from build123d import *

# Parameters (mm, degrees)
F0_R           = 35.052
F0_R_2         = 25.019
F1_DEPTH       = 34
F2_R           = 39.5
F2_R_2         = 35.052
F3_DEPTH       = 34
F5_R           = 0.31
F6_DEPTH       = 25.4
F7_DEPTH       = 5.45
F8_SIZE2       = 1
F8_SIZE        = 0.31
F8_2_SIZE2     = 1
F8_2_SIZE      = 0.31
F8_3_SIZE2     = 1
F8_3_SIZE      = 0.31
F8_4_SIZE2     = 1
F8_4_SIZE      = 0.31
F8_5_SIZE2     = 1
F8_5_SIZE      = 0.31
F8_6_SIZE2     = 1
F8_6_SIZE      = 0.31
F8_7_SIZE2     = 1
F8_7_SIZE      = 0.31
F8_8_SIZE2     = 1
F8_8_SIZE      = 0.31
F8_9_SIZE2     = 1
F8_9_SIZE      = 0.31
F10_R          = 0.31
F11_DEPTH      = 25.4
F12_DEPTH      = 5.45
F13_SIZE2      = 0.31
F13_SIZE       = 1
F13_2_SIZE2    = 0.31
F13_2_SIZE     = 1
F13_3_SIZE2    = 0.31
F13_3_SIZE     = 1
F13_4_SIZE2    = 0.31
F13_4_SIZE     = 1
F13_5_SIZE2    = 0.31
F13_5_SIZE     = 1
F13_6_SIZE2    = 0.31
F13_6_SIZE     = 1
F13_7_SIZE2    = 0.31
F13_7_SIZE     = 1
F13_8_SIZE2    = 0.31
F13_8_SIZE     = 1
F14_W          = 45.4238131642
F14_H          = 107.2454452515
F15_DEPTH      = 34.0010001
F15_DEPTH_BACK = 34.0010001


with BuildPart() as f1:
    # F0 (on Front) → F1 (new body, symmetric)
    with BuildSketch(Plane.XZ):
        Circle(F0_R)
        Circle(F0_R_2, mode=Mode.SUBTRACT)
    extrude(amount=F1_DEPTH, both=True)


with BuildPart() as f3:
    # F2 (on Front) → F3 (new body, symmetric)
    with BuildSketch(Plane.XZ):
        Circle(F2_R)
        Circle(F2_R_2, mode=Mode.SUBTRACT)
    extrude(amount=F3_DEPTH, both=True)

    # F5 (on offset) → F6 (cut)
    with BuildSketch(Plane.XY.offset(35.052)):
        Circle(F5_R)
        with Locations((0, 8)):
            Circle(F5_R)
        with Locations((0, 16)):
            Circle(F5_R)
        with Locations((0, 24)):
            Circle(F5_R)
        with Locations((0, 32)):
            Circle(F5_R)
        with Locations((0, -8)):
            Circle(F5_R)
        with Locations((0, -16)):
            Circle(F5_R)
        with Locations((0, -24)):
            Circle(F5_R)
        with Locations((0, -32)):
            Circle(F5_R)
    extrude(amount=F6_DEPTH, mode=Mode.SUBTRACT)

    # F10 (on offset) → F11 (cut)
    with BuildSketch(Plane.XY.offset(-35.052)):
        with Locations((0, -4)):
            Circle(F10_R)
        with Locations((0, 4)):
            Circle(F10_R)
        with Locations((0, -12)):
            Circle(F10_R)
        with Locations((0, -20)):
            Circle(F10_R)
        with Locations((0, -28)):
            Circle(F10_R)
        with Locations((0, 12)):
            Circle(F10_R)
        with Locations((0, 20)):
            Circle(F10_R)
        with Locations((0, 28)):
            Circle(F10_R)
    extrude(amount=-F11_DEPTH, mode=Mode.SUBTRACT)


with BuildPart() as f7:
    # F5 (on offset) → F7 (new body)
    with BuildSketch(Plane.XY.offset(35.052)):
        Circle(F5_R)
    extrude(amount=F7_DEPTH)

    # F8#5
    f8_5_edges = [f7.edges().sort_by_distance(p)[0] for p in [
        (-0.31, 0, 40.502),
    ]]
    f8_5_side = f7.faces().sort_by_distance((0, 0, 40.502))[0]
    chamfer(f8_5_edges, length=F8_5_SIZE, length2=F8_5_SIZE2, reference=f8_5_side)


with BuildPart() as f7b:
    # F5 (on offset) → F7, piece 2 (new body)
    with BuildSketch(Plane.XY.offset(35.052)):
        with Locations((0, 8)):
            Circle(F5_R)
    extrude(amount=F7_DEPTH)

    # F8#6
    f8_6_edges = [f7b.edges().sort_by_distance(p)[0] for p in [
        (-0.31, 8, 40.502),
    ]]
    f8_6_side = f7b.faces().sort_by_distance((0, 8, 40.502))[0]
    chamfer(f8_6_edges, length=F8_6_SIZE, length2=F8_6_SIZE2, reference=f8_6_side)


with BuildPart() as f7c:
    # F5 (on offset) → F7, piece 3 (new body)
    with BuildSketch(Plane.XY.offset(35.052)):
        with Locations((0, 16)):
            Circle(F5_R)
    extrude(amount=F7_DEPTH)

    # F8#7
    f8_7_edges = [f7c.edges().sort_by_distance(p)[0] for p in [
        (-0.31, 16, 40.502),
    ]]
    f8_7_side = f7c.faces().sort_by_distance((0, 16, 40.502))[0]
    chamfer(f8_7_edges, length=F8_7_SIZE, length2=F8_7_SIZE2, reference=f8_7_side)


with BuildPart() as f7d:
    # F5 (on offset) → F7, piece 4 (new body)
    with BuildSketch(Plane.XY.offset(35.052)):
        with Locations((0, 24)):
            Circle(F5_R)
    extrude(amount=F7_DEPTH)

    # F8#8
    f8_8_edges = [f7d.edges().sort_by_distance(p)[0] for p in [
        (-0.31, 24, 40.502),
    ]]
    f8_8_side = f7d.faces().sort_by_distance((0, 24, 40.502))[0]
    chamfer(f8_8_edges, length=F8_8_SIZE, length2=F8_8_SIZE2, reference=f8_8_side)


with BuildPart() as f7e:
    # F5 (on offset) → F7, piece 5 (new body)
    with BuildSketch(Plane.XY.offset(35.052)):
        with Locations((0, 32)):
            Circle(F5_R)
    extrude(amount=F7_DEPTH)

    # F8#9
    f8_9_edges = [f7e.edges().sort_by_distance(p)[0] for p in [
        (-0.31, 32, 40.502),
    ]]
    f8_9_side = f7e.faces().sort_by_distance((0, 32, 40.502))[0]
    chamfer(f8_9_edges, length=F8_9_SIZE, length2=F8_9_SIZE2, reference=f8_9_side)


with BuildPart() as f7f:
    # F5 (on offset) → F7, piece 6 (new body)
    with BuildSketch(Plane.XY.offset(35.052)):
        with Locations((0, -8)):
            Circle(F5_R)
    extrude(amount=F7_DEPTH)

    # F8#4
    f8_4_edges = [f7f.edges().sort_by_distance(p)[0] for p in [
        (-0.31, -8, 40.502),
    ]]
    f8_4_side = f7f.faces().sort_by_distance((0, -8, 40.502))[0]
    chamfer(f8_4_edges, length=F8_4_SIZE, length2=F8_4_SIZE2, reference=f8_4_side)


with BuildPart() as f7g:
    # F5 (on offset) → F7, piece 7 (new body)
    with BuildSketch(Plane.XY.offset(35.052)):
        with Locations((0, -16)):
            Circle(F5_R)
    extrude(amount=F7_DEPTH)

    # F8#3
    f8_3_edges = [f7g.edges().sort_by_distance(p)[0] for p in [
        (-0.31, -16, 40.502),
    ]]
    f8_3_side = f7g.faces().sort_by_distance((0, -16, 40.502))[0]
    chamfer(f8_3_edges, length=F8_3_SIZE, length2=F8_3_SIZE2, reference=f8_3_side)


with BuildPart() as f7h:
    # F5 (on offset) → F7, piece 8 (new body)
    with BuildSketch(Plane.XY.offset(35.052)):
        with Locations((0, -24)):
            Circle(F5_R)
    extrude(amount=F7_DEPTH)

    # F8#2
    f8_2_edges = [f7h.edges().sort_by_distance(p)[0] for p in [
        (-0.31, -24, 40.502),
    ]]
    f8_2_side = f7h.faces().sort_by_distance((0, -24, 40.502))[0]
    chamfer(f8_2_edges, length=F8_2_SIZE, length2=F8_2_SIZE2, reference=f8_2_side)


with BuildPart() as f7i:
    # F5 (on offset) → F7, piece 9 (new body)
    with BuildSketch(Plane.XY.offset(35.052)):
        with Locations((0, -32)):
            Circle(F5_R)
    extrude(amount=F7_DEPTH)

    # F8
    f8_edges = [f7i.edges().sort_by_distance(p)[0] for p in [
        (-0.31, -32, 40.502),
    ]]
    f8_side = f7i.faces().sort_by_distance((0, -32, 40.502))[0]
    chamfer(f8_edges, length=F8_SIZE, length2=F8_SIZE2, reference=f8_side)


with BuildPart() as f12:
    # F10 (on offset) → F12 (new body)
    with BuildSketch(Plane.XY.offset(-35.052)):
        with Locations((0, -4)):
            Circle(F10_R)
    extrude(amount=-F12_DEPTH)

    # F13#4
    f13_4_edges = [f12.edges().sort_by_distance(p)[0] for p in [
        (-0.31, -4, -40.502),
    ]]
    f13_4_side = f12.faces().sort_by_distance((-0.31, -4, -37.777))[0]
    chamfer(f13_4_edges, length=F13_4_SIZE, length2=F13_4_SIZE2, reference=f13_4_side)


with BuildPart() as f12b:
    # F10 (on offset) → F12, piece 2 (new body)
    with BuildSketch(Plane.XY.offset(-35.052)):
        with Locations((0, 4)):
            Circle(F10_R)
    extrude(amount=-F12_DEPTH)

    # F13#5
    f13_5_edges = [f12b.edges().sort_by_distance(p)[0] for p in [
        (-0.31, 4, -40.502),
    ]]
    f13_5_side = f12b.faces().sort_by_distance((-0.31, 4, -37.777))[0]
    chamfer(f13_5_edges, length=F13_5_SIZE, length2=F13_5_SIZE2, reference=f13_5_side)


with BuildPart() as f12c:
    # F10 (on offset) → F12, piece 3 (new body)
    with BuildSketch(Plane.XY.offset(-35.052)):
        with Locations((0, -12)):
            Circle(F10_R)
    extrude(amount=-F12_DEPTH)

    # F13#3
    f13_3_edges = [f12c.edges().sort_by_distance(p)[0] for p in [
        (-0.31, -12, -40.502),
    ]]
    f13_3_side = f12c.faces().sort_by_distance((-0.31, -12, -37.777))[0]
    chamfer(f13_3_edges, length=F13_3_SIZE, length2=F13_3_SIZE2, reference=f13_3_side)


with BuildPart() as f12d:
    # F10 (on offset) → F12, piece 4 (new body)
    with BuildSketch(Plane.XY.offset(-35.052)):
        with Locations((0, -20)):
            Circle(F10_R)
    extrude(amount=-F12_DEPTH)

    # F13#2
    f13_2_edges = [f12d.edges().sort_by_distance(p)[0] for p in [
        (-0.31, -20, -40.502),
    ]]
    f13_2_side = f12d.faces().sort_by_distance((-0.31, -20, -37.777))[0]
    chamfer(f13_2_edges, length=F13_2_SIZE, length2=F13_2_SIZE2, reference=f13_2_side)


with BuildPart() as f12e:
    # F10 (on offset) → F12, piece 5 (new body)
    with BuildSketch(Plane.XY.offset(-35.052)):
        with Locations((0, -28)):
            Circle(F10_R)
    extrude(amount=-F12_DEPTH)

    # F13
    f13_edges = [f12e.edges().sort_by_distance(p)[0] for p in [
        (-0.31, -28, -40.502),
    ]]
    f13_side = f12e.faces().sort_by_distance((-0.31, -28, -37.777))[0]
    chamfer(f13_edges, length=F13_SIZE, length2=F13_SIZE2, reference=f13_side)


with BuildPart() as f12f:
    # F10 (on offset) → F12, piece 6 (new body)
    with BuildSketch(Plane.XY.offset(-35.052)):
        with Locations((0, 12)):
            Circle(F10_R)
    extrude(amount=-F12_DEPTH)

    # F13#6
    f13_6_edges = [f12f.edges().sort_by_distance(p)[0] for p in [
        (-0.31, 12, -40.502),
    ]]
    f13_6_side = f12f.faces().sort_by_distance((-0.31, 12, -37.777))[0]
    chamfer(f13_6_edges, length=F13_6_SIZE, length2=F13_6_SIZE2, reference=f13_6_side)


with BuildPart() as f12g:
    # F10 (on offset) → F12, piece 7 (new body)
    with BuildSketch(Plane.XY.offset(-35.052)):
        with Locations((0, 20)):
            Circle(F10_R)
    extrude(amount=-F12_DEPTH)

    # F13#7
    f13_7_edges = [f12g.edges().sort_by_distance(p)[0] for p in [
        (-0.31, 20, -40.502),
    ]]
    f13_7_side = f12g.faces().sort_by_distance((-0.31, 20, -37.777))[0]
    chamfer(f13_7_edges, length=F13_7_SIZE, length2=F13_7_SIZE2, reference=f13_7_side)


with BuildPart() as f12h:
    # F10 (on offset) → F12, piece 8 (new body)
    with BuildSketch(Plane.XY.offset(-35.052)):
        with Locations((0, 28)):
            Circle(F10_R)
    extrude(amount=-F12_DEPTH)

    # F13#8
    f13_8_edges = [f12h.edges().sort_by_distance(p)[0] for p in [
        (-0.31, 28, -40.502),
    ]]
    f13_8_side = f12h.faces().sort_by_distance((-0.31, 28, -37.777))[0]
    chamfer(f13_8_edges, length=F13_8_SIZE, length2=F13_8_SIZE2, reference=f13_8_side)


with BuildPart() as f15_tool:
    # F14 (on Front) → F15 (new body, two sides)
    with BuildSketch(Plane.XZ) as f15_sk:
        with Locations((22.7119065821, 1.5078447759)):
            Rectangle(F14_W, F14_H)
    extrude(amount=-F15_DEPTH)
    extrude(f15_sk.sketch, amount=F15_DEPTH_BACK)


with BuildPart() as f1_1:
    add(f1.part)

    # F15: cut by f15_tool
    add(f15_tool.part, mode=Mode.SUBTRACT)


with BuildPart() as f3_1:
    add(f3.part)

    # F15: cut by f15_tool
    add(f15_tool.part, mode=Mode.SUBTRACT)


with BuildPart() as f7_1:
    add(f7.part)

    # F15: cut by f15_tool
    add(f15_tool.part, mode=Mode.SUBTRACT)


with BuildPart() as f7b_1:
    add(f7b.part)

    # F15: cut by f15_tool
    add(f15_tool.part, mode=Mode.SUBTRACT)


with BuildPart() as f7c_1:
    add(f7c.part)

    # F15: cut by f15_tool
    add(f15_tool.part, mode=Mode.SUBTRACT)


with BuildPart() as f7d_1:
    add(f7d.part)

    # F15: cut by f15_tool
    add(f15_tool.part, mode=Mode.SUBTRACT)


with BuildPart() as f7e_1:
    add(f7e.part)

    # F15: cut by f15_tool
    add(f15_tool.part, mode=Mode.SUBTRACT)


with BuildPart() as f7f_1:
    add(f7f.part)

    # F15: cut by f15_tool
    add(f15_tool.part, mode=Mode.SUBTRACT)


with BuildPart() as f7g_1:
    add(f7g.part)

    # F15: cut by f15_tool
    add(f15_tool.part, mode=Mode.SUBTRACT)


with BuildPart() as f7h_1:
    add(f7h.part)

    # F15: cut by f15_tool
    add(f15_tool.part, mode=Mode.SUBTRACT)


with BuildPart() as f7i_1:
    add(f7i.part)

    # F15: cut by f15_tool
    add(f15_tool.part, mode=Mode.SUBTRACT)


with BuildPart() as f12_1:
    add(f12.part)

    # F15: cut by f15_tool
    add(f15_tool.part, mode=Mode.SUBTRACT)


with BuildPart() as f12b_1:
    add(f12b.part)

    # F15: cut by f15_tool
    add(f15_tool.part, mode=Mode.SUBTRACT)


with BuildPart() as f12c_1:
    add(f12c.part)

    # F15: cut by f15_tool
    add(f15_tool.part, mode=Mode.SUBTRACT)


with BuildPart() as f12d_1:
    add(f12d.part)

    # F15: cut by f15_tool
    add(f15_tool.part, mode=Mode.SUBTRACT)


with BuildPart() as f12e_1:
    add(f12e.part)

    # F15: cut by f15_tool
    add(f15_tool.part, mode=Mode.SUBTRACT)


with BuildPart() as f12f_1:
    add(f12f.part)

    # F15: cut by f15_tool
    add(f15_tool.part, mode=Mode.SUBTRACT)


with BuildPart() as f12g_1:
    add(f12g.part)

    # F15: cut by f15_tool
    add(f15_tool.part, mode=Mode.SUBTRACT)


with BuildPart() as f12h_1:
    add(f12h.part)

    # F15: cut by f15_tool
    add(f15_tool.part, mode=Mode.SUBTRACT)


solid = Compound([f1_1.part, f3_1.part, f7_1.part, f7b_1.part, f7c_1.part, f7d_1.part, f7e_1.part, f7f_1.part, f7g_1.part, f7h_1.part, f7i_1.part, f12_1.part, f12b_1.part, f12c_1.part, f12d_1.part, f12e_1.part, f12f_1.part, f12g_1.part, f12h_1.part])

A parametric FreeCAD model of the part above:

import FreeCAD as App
import Part
import Sketcher
from FreeCAD import Vector


def edges_at(feature, points):
    """Names of the edges that pass closest to the given points."""
    edges = feature.Shape.Edges
    near = lambda p: min(range(len(edges)), key=lambda i: edges[i].distToShape(Part.Vertex(*p))[0])
    return sorted({f"Edge{near(p) + 1}" for p in points})


def add_polygon(sketch, points):
    """Adds a closed chain of lines whose ends are joined by coincident constraints."""
    first, n = sketch.GeometryCount, len(points)
    for a, b in zip(points, points[1:] + points[:1]):
        sketch.addGeometry(Part.LineSegment(App.Vector(*a, 0), App.Vector(*b, 0)), False)
    for i in range(n):
        sketch.addConstraint(Sketcher.Constraint("Coincident", first + i, 2, first + (i + 1) % n, 1))

doc = App.newDocument("Part")
body = doc.addObject("PartDesign::Body", "Body")

sketch1 = body.newObject("Sketcher::SketchObject", "Sketch")
sketch1.AttachmentSupport = (doc.getObject("XZ_Plane"), [""])
sketch1.MapMode = "FlatFace"
sketch1.addGeometry([
    Part.Circle(Vector(0, 0, 0), Vector(0, 0, 1), 35),
    Part.Circle(Vector(0, 0, 0), Vector(0, 0, 1), 25),
], False)
sketch1.addConstraint([
    Sketcher.Constraint("Coincident", 0, 3, -1, 1),
    Sketcher.Constraint("Coincident", 1, 3, -1, 1),
    Sketcher.Constraint("Diameter", 0, 70.104),
    Sketcher.Constraint("Diameter", 1, 50.038),
])
pad1 = body.newObject("PartDesign::Pad", "Pad")
pad1.Profile = sketch1
pad1.Length = 68
pad1.Midplane = True
body2 = doc.addObject("PartDesign::Body", "Body001")

sketch2 = body2.newObject("Sketcher::SketchObject", "Sketch001")
sketch2.AttachmentSupport = (doc.getObject("XZ_Plane001"), [""])
sketch2.MapMode = "FlatFace"
sketch2.addGeometry([
    Part.Circle(Vector(0, 0, 0), Vector(0, 0, 1), 40),
    Part.Circle(Vector(0, 0, 0), Vector(0, 0, 1), 35),
], False)
sketch2.addConstraint([
    Sketcher.Constraint("Coincident", 0, 3, -1, 1),
    Sketcher.Constraint("Coincident", 1, 3, -1, 1),
    Sketcher.Constraint("Diameter", 0, 79.0),
    Sketcher.Constraint("Diameter", 1, 70.104),
])
pad2 = body2.newObject("PartDesign::Pad", "Pad001")
pad2.Profile = sketch2
pad2.Length = 68
pad2.Midplane = True

sketch3 = body2.newObject("Sketcher::SketchObject", "Sketch002")
sketch3.AttachmentSupport = (doc.getObject("XY_Plane001"), [""])
sketch3.MapMode = "FlatFace"
sketch3.AttachmentOffset = App.Placement(Vector(0, 0, 35.052), App.Rotation())
sketch3.addGeometry([
    Part.Circle(Vector(0, 0, 0), Vector(0, 0, 1), 0.31),
    Part.Circle(Vector(0, 8, 0), Vector(0, 0, 1), 0.31),
    Part.Circle(Vector(0, 16, 0), Vector(0, 0, 1), 0.31),
    Part.Circle(Vector(0, 24, 0), Vector(0, 0, 1), 0.31),
    Part.Circle(Vector(0, 32, 0), Vector(0, 0, 1), 0.31),
    Part.Circle(Vector(0, -8, 0), Vector(0, 0, 1), 0.31),
    Part.Circle(Vector(0, -16, 0), Vector(0, 0, 1), 0.31),
    Part.Circle(Vector(0, -24, 0), Vector(0, 0, 1), 0.31),
    Part.Circle(Vector(0, -32, 0), Vector(0, 0, 1), 0.31),
], False)
sketch3.addConstraint([
    Sketcher.Constraint("Coincident", 0, 3, -1, 1),
    Sketcher.Constraint("Equal", 0, 1),
    Sketcher.Constraint("Equal", 1, 2),
    Sketcher.Constraint("Equal", 2, 3),
    Sketcher.Constraint("Equal", 3, 4),
    Sketcher.Constraint("Equal", 4, 5),
    Sketcher.Constraint("Equal", 5, 6),
    Sketcher.Constraint("Equal", 6, 7),
    Sketcher.Constraint("Equal", 7, 8),
    Sketcher.Constraint("Symmetric", 1, 3, 5, 3, -1, 1),
    Sketcher.Constraint("Symmetric", 2, 3, 6, 3, -1, 1),
    Sketcher.Constraint("Symmetric", 3, 3, 7, 3, -1, 1),
    Sketcher.Constraint("Symmetric", 4, 3, 8, 3, -1, 1),
    Sketcher.Constraint("PointOnObject", 1, 3, -2),
    Sketcher.Constraint("PointOnObject", 2, 3, -2),
    Sketcher.Constraint("PointOnObject", 3, 3, -2),
    Sketcher.Constraint("PointOnObject", 4, 3, -2),
    Sketcher.Constraint("Diameter", 0, 0.62),
    Sketcher.Constraint("DistanceY", -1, 1, 1, 3, 8.0),
    Sketcher.Constraint("DistanceY", -1, 1, 2, 3, 16.0),
    Sketcher.Constraint("DistanceY", -1, 1, 3, 3, 24.0),
    Sketcher.Constraint("DistanceY", -1, 1, 4, 3, 32.0),
])
pocket1 = body2.newObject("PartDesign::Pocket", "Pocket")
pocket1.Profile = sketch3
pocket1.Length = 25.4
pocket1.Reversed = True

sketch4 = body2.newObject("Sketcher::SketchObject", "Sketch003")
sketch4.AttachmentSupport = (doc.getObject("XY_Plane001"), [""])
sketch4.MapMode = "FlatFace"
sketch4.AttachmentOffset = App.Placement(Vector(0, 0, -35.052), App.Rotation())
sketch4.addGeometry([
    Part.Circle(Vector(0, -4, 0), Vector(0, 0, 1), 0.31),
    Part.Circle(Vector(0, 4, 0), Vector(0, 0, 1), 0.31),
    Part.Circle(Vector(0, -12, 0), Vector(0, 0, 1), 0.31),
    Part.Circle(Vector(0, -20, 0), Vector(0, 0, 1), 0.31),
    Part.Circle(Vector(0, -28, 0), Vector(0, 0, 1), 0.31),
    Part.Circle(Vector(0, 12, 0), Vector(0, 0, 1), 0.31),
    Part.Circle(Vector(0, 20, 0), Vector(0, 0, 1), 0.31),
    Part.Circle(Vector(0, 28, 0), Vector(0, 0, 1), 0.31),
], False)
sketch4.addConstraint([
    Sketcher.Constraint("Equal", 0, 1),
    Sketcher.Constraint("Equal", 1, 2),
    Sketcher.Constraint("Equal", 2, 3),
    Sketcher.Constraint("Equal", 3, 4),
    Sketcher.Constraint("Equal", 4, 5),
    Sketcher.Constraint("Equal", 5, 6),
    Sketcher.Constraint("Equal", 6, 7),
    Sketcher.Constraint("Symmetric", 0, 3, 1, 3, -1, 1),
    Sketcher.Constraint("Symmetric", 2, 3, 5, 3, -1, 1),
    Sketcher.Constraint("Symmetric", 3, 3, 6, 3, -1, 1),
    Sketcher.Constraint("Symmetric", 4, 3, 7, 3, -1, 1),
    Sketcher.Constraint("PointOnObject", 0, 3, -2),
    Sketcher.Constraint("PointOnObject", 2, 3, -2),
    Sketcher.Constraint("PointOnObject", 3, 3, -2),
    Sketcher.Constraint("PointOnObject", 4, 3, -2),
    Sketcher.Constraint("Diameter", 0, 0.62),
    Sketcher.Constraint("DistanceY", 0, 3, -1, 1, 4.0),
    Sketcher.Constraint("DistanceY", 2, 3, -1, 1, 12.0),
    Sketcher.Constraint("DistanceY", 3, 3, -1, 1, 20.0),
    Sketcher.Constraint("DistanceY", 4, 3, -1, 1, 28.0),
])
pocket2 = body2.newObject("PartDesign::Pocket", "Pocket001")
pocket2.Profile = sketch4
pocket2.Length = 25.4
body3 = doc.addObject("PartDesign::Body", "Body002")

sketch5 = body3.newObject("Sketcher::SketchObject", "Sketch004")
sketch5.AttachmentSupport = (doc.getObject("XY_Plane002"), [""])
sketch5.MapMode = "FlatFace"
sketch5.AttachmentOffset = App.Placement(Vector(0, 0, 35.052), App.Rotation())
sketch5.addGeometry(Part.Circle(Vector(0, 0, 0), Vector(0, 0, 1), 0.31), False)
sketch5.addConstraint([
    Sketcher.Constraint("Coincident", 0, 3, -1, 1),
    Sketcher.Constraint("Diameter", 0, 0.62),
])
pad3 = body3.newObject("PartDesign::Pad", "Pad002")
pad3.Profile = sketch5
pad3.Length = 5.45
doc.recompute()

chamfer = body3.newObject("PartDesign::Chamfer", "Chamfer")
chamfer.Base = (pad3, edges_at(pad3, [(-0.31, 0, 40.502)]))
chamfer.ChamferType = "Two distances"
chamfer.Size = 0.31
chamfer.Size2 = 1
chamfer.FlipDirection = True
body4 = doc.addObject("PartDesign::Body", "Body003")

sketch6 = body4.newObject("Sketcher::SketchObject", "Sketch005")
sketch6.AttachmentSupport = (doc.getObject("XY_Plane003"), [""])
sketch6.MapMode = "FlatFace"
sketch6.AttachmentOffset = App.Placement(Vector(0, 0, 35.052), App.Rotation())
sketch6.addGeometry(Part.Circle(Vector(0, 8, 0), Vector(0, 0, 1), 0.31), False)
sketch6.addConstraint([
    Sketcher.Constraint("PointOnObject", 0, 3, -2),
    Sketcher.Constraint("Diameter", 0, 0.62),
    Sketcher.Constraint("DistanceY", -1, 1, 0, 3, 8.0),
])
pad4 = body4.newObject("PartDesign::Pad", "Pad003")
pad4.Profile = sketch6
pad4.Length = 5.45
doc.recompute()

chamfer2 = body4.newObject("PartDesign::Chamfer", "Chamfer001")
chamfer2.Base = (pad4, edges_at(pad4, [(-0.31, 8, 40.502)]))
chamfer2.ChamferType = "Two distances"
chamfer2.Size = 0.31
chamfer2.Size2 = 1
chamfer2.FlipDirection = True
body5 = doc.addObject("PartDesign::Body", "Body004")

sketch7 = body5.newObject("Sketcher::SketchObject", "Sketch006")
sketch7.AttachmentSupport = (doc.getObject("XY_Plane004"), [""])
sketch7.MapMode = "FlatFace"
sketch7.AttachmentOffset = App.Placement(Vector(0, 0, 35.052), App.Rotation())
sketch7.addGeometry(Part.Circle(Vector(0, 16, 0), Vector(0, 0, 1), 0.31), False)
sketch7.addConstraint([
    Sketcher.Constraint("PointOnObject", 0, 3, -2),
    Sketcher.Constraint("Diameter", 0, 0.62),
    Sketcher.Constraint("DistanceY", -1, 1, 0, 3, 16.0),
])
pad5 = body5.newObject("PartDesign::Pad", "Pad004")
pad5.Profile = sketch7
pad5.Length = 5.45
doc.recompute()

chamfer3 = body5.newObject("PartDesign::Chamfer", "Chamfer002")
chamfer3.Base = (pad5, edges_at(pad5, [(-0.31, 16, 40.502)]))
chamfer3.ChamferType = "Two distances"
chamfer3.Size = 0.31
chamfer3.Size2 = 1
chamfer3.FlipDirection = True
body6 = doc.addObject("PartDesign::Body", "Body005")

sketch8 = body6.newObject("Sketcher::SketchObject", "Sketch007")
sketch8.AttachmentSupport = (doc.getObject("XY_Plane005"), [""])
sketch8.MapMode = "FlatFace"
sketch8.AttachmentOffset = App.Placement(Vector(0, 0, 35.052), App.Rotation())
sketch8.addGeometry(Part.Circle(Vector(0, 24, 0), Vector(0, 0, 1), 0.31), False)
sketch8.addConstraint([
    Sketcher.Constraint("PointOnObject", 0, 3, -2),
    Sketcher.Constraint("Diameter", 0, 0.62),
    Sketcher.Constraint("DistanceY", -1, 1, 0, 3, 24.0),
])
pad6 = body6.newObject("PartDesign::Pad", "Pad005")
pad6.Profile = sketch8
pad6.Length = 5.45
doc.recompute()

chamfer4 = body6.newObject("PartDesign::Chamfer", "Chamfer003")
chamfer4.Base = (pad6, edges_at(pad6, [(-0.31, 24, 40.502)]))
chamfer4.ChamferType = "Two distances"
chamfer4.Size = 0.31
chamfer4.Size2 = 1
chamfer4.FlipDirection = True
body7 = doc.addObject("PartDesign::Body", "Body006")

sketch9 = body7.newObject("Sketcher::SketchObject", "Sketch008")
sketch9.AttachmentSupport = (doc.getObject("XY_Plane006"), [""])
sketch9.MapMode = "FlatFace"
sketch9.AttachmentOffset = App.Placement(Vector(0, 0, 35.052), App.Rotation())
sketch9.addGeometry(Part.Circle(Vector(0, 32, 0), Vector(0, 0, 1), 0.31), False)
sketch9.addConstraint([
    Sketcher.Constraint("PointOnObject", 0, 3, -2),
    Sketcher.Constraint("Diameter", 0, 0.62),
    Sketcher.Constraint("DistanceY", -1, 1, 0, 3, 32.0),
])
pad7 = body7.newObject("PartDesign::Pad", "Pad006")
pad7.Profile = sketch9
pad7.Length = 5.45
doc.recompute()

chamfer5 = body7.newObject("PartDesign::Chamfer", "Chamfer004")
chamfer5.Base = (pad7, edges_at(pad7, [(-0.31, 32, 40.502)]))
chamfer5.ChamferType = "Two distances"
chamfer5.Size = 0.31
chamfer5.Size2 = 1
chamfer5.FlipDirection = True
body8 = doc.addObject("PartDesign::Body", "Body007")

sketch10 = body8.newObject("Sketcher::SketchObject", "Sketch009")
sketch10.AttachmentSupport = (doc.getObject("XY_Plane007"), [""])
sketch10.MapMode = "FlatFace"
sketch10.AttachmentOffset = App.Placement(Vector(0, 0, 35.052), App.Rotation())
sketch10.addGeometry(Part.Circle(Vector(0, -8, 0), Vector(0, 0, 1), 0.31), False)
sketch10.addConstraint([
    Sketcher.Constraint("PointOnObject", 0, 3, -2),
    Sketcher.Constraint("Diameter", 0, 0.62),
    Sketcher.Constraint("DistanceY", 0, 3, -1, 1, 8.0),
])
pad8 = body8.newObject("PartDesign::Pad", "Pad007")
pad8.Profile = sketch10
pad8.Length = 5.45
doc.recompute()

chamfer6 = body8.newObject("PartDesign::Chamfer", "Chamfer005")
chamfer6.Base = (pad8, edges_at(pad8, [(-0.31, -8, 40.502)]))
chamfer6.ChamferType = "Two distances"
chamfer6.Size = 0.31
chamfer6.Size2 = 1
chamfer6.FlipDirection = True
body9 = doc.addObject("PartDesign::Body", "Body008")

sketch11 = body9.newObject("Sketcher::SketchObject", "Sketch010")
sketch11.AttachmentSupport = (doc.getObject("XY_Plane008"), [""])
sketch11.MapMode = "FlatFace"
sketch11.AttachmentOffset = App.Placement(Vector(0, 0, 35.052), App.Rotation())
sketch11.addGeometry(Part.Circle(Vector(0, -16, 0), Vector(0, 0, 1), 0.31), False)
sketch11.addConstraint([
    Sketcher.Constraint("PointOnObject", 0, 3, -2),
    Sketcher.Constraint("Diameter", 0, 0.62),
    Sketcher.Constraint("DistanceY", 0, 3, -1, 1, 16.0),
])
pad9 = body9.newObject("PartDesign::Pad", "Pad008")
pad9.Profile = sketch11
pad9.Length = 5.45
doc.recompute()

chamfer7 = body9.newObject("PartDesign::Chamfer", "Chamfer006")
chamfer7.Base = (pad9, edges_at(pad9, [(-0.31, -16, 40.502)]))
chamfer7.ChamferType = "Two distances"
chamfer7.Size = 0.31
chamfer7.Size2 = 1
chamfer7.FlipDirection = True
body10 = doc.addObject("PartDesign::Body", "Body009")

sketch12 = body10.newObject("Sketcher::SketchObject", "Sketch011")
sketch12.AttachmentSupport = (doc.getObject("XY_Plane009"), [""])
sketch12.MapMode = "FlatFace"
sketch12.AttachmentOffset = App.Placement(Vector(0, 0, 35.052), App.Rotation())
sketch12.addGeometry(Part.Circle(Vector(0, -24, 0), Vector(0, 0, 1), 0.31), False)
sketch12.addConstraint([
    Sketcher.Constraint("PointOnObject", 0, 3, -2),
    Sketcher.Constraint("Diameter", 0, 0.62),
    Sketcher.Constraint("DistanceY", 0, 3, -1, 1, 24.0),
])
pad10 = body10.newObject("PartDesign::Pad", "Pad009")
pad10.Profile = sketch12
pad10.Length = 5.45
doc.recompute()

chamfer8 = body10.newObject("PartDesign::Chamfer", "Chamfer007")
chamfer8.Base = (pad10, edges_at(pad10, [(-0.31, -24, 40.502)]))
chamfer8.ChamferType = "Two distances"
chamfer8.Size = 0.31
chamfer8.Size2 = 1
chamfer8.FlipDirection = True
body11 = doc.addObject("PartDesign::Body", "Body010")

sketch13 = body11.newObject("Sketcher::SketchObject", "Sketch012")
sketch13.AttachmentSupport = (doc.getObject("XY_Plane010"), [""])
sketch13.MapMode = "FlatFace"
sketch13.AttachmentOffset = App.Placement(Vector(0, 0, 35.052), App.Rotation())
sketch13.addGeometry(Part.Circle(Vector(0, -32, 0), Vector(0, 0, 1), 0.31), False)
sketch13.addConstraint([
    Sketcher.Constraint("PointOnObject", 0, 3, -2),
    Sketcher.Constraint("Diameter", 0, 0.62),
    Sketcher.Constraint("DistanceY", 0, 3, -1, 1, 32.0),
])
pad11 = body11.newObject("PartDesign::Pad", "Pad010")
pad11.Profile = sketch13
pad11.Length = 5.45
doc.recompute()

chamfer9 = body11.newObject("PartDesign::Chamfer", "Chamfer008")
chamfer9.Base = (pad11, edges_at(pad11, [(-0.31, -32, 40.502)]))
chamfer9.ChamferType = "Two distances"
chamfer9.Size = 0.31
chamfer9.Size2 = 1
chamfer9.FlipDirection = True
body12 = doc.addObject("PartDesign::Body", "Body011")

sketch14 = body12.newObject("Sketcher::SketchObject", "Sketch013")
sketch14.AttachmentSupport = (doc.getObject("XY_Plane011"), [""])
sketch14.MapMode = "FlatFace"
sketch14.AttachmentOffset = App.Placement(Vector(0, 0, -35.052), App.Rotation())
sketch14.addGeometry(Part.Circle(Vector(0, -4, 0), Vector(0, 0, 1), 0.31), False)
sketch14.addConstraint([
    Sketcher.Constraint("PointOnObject", 0, 3, -2),
    Sketcher.Constraint("Diameter", 0, 0.62),
    Sketcher.Constraint("DistanceY", 0, 3, -1, 1, 4.0),
])
pad12 = body12.newObject("PartDesign::Pad", "Pad011")
pad12.Profile = sketch14
pad12.Length = 5.45
pad12.Reversed = True
doc.recompute()

chamfer10 = body12.newObject("PartDesign::Chamfer", "Chamfer009")
chamfer10.Base = (pad12, edges_at(pad12, [(-0.31, -4, -40.502)]))
chamfer10.ChamferType = "Two distances"
chamfer10.Size = 1
chamfer10.Size2 = 0.31
body13 = doc.addObject("PartDesign::Body", "Body012")

sketch15 = body13.newObject("Sketcher::SketchObject", "Sketch014")
sketch15.AttachmentSupport = (doc.getObject("XY_Plane012"), [""])
sketch15.MapMode = "FlatFace"
sketch15.AttachmentOffset = App.Placement(Vector(0, 0, -35.052), App.Rotation())
sketch15.addGeometry(Part.Circle(Vector(0, 4, 0), Vector(0, 0, 1), 0.31), False)
sketch15.addConstraint([
    Sketcher.Constraint("PointOnObject", 0, 3, -2),
    Sketcher.Constraint("Diameter", 0, 0.62),
    Sketcher.Constraint("DistanceY", -1, 1, 0, 3, 4.0),
])
pad13 = body13.newObject("PartDesign::Pad", "Pad012")
pad13.Profile = sketch15
pad13.Length = 5.45
pad13.Reversed = True
doc.recompute()

chamfer11 = body13.newObject("PartDesign::Chamfer", "Chamfer010")
chamfer11.Base = (pad13, edges_at(pad13, [(-0.31, 4, -40.502)]))
chamfer11.ChamferType = "Two distances"
chamfer11.Size = 1
chamfer11.Size2 = 0.31
body14 = doc.addObject("PartDesign::Body", "Body013")

sketch16 = body14.newObject("Sketcher::SketchObject", "Sketch015")
sketch16.AttachmentSupport = (doc.getObject("XY_Plane013"), [""])
sketch16.MapMode = "FlatFace"
sketch16.AttachmentOffset = App.Placement(Vector(0, 0, -35.052), App.Rotation())
sketch16.addGeometry(Part.Circle(Vector(0, -12, 0), Vector(0, 0, 1), 0.31), False)
sketch16.addConstraint([
    Sketcher.Constraint("PointOnObject", 0, 3, -2),
    Sketcher.Constraint("Diameter", 0, 0.62),
    Sketcher.Constraint("DistanceY", 0, 3, -1, 1, 12.0),
])
pad14 = body14.newObject("PartDesign::Pad", "Pad013")
pad14.Profile = sketch16
pad14.Length = 5.45
pad14.Reversed = True
doc.recompute()

chamfer12 = body14.newObject("PartDesign::Chamfer", "Chamfer011")
chamfer12.Base = (pad14, edges_at(pad14, [(-0.31, -12, -40.502)]))
chamfer12.ChamferType = "Two distances"
chamfer12.Size = 1
chamfer12.Size2 = 0.31
body15 = doc.addObject("PartDesign::Body", "Body014")

sketch17 = body15.newObject("Sketcher::SketchObject", "Sketch016")
sketch17.AttachmentSupport = (doc.getObject("XY_Plane014"), [""])
sketch17.MapMode = "FlatFace"
sketch17.AttachmentOffset = App.Placement(Vector(0, 0, -35.052), App.Rotation())
sketch17.addGeometry(Part.Circle(Vector(0, -20, 0), Vector(0, 0, 1), 0.31), False)
sketch17.addConstraint([
    Sketcher.Constraint("PointOnObject", 0, 3, -2),
    Sketcher.Constraint("Diameter", 0, 0.62),
    Sketcher.Constraint("DistanceY", 0, 3, -1, 1, 20.0),
])
pad15 = body15.newObject("PartDesign::Pad", "Pad014")
pad15.Profile = sketch17
pad15.Length = 5.45
pad15.Reversed = True
doc.recompute()

chamfer13 = body15.newObject("PartDesign::Chamfer", "Chamfer012")
chamfer13.Base = (pad15, edges_at(pad15, [(-0.31, -20, -40.502)]))
chamfer13.ChamferType = "Two distances"
chamfer13.Size = 1
chamfer13.Size2 = 0.31
body16 = doc.addObject("PartDesign::Body", "Body015")

sketch18 = body16.newObject("Sketcher::SketchObject", "Sketch017")
sketch18.AttachmentSupport = (doc.getObject("XY_Plane015"), [""])
sketch18.MapMode = "FlatFace"
sketch18.AttachmentOffset = App.Placement(Vector(0, 0, -35.052), App.Rotation())
sketch18.addGeometry(Part.Circle(Vector(0, -28, 0), Vector(0, 0, 1), 0.31), False)
sketch18.addConstraint([
    Sketcher.Constraint("PointOnObject", 0, 3, -2),
    Sketcher.Constraint("Diameter", 0, 0.62),
    Sketcher.Constraint("DistanceY", 0, 3, -1, 1, 28.0),
])
pad16 = body16.newObject("PartDesign::Pad", "Pad015")
pad16.Profile = sketch18
pad16.Length = 5.45
pad16.Reversed = True
doc.recompute()

chamfer14 = body16.newObject("PartDesign::Chamfer", "Chamfer013")
chamfer14.Base = (pad16, edges_at(pad16, [(-0.31, -28, -40.502)]))
chamfer14.ChamferType = "Two distances"
chamfer14.Size = 1
chamfer14.Size2 = 0.31
body17 = doc.addObject("PartDesign::Body", "Body016")

sketch19 = body17.newObject("Sketcher::SketchObject", "Sketch018")
sketch19.AttachmentSupport = (doc.getObject("XY_Plane016"), [""])
sketch19.MapMode = "FlatFace"
sketch19.AttachmentOffset = App.Placement(Vector(0, 0, -35.052), App.Rotation())
sketch19.addGeometry(Part.Circle(Vector(0, 12, 0), Vector(0, 0, 1), 0.31), False)
sketch19.addConstraint([
    Sketcher.Constraint("PointOnObject", 0, 3, -2),
    Sketcher.Constraint("Diameter", 0, 0.62),
    Sketcher.Constraint("DistanceY", -1, 1, 0, 3, 12.0),
])
pad17 = body17.newObject("PartDesign::Pad", "Pad016")
pad17.Profile = sketch19
pad17.Length = 5.45
pad17.Reversed = True
doc.recompute()

chamfer15 = body17.newObject("PartDesign::Chamfer", "Chamfer014")
chamfer15.Base = (pad17, edges_at(pad17, [(-0.31, 12, -40.502)]))
chamfer15.ChamferType = "Two distances"
chamfer15.Size = 1
chamfer15.Size2 = 0.31
body18 = doc.addObject("PartDesign::Body", "Body017")

sketch20 = body18.newObject("Sketcher::SketchObject", "Sketch019")
sketch20.AttachmentSupport = (doc.getObject("XY_Plane017"), [""])
sketch20.MapMode = "FlatFace"
sketch20.AttachmentOffset = App.Placement(Vector(0, 0, -35.052), App.Rotation())
sketch20.addGeometry(Part.Circle(Vector(0, 20, 0), Vector(0, 0, 1), 0.31), False)
sketch20.addConstraint([
    Sketcher.Constraint("PointOnObject", 0, 3, -2),
    Sketcher.Constraint("Diameter", 0, 0.62),
    Sketcher.Constraint("DistanceY", -1, 1, 0, 3, 20.0),
])
pad18 = body18.newObject("PartDesign::Pad", "Pad017")
pad18.Profile = sketch20
pad18.Length = 5.45
pad18.Reversed = True
doc.recompute()

chamfer16 = body18.newObject("PartDesign::Chamfer", "Chamfer015")
chamfer16.Base = (pad18, edges_at(pad18, [(-0.31, 20, -40.502)]))
chamfer16.ChamferType = "Two distances"
chamfer16.Size = 1
chamfer16.Size2 = 0.31
body19 = doc.addObject("PartDesign::Body", "Body018")

sketch21 = body19.newObject("Sketcher::SketchObject", "Sketch020")
sketch21.AttachmentSupport = (doc.getObject("XY_Plane018"), [""])
sketch21.MapMode = "FlatFace"
sketch21.AttachmentOffset = App.Placement(Vector(0, 0, -35.052), App.Rotation())
sketch21.addGeometry(Part.Circle(Vector(0, 28, 0), Vector(0, 0, 1), 0.31), False)
sketch21.addConstraint([
    Sketcher.Constraint("PointOnObject", 0, 3, -2),
    Sketcher.Constraint("Diameter", 0, 0.62),
    Sketcher.Constraint("DistanceY", -1, 1, 0, 3, 28.0),
])
pad19 = body19.newObject("PartDesign::Pad", "Pad018")
pad19.Profile = sketch21
pad19.Length = 5.45
pad19.Reversed = True
doc.recompute()

chamfer17 = body19.newObject("PartDesign::Chamfer", "Chamfer016")
chamfer17.Base = (pad19, edges_at(pad19, [(-0.31, 28, -40.502)]))
chamfer17.ChamferType = "Two distances"
chamfer17.Size = 1
chamfer17.Size2 = 0.31
body20 = doc.addObject("PartDesign::Body", "Body019")

sketch22 = body20.newObject("Sketcher::SketchObject", "Sketch021")
sketch22.AttachmentSupport = (doc.getObject("XZ_Plane019"), [""])
sketch22.MapMode = "FlatFace"
add_polygon(sketch22, [(0, 55), (0, -52), (45, -52), (45, 55)])
sketch22.addConstraint([
    Sketcher.Constraint("Vertical", 0),
    Sketcher.Constraint("Horizontal", 1),
    Sketcher.Constraint("Vertical", 2),
    Sketcher.Constraint("Horizontal", 3),
    Sketcher.Constraint("PointOnObject", 0, 2, -2),
    Sketcher.Constraint("DistanceX", 1, 1, 1, 2, 45.423813),
    Sketcher.Constraint("DistanceY", 0, 2, 0, 1, 107.245445),
    Sketcher.Constraint("DistanceY", 0, 2, -1, 1, 52.114878),
])
pad20 = body20.newObject("PartDesign::Pad", "Pad019")
pad20.Profile = sketch22
pad20.Type = "TwoLengths"
pad20.Length = 34.001
pad20.Length2 = 34.001
pad20.Reversed = True
doc.recompute()

body21 = doc.addObject("PartDesign::Body", "Body020")
body21.BaseFeature = body20
boolean = body.newObject("PartDesign::Boolean", "Boolean")
boolean.Type = "Cut"
boolean.addObjects([body21])
doc.recompute()

body22 = doc.addObject("PartDesign::Body", "Body021")
body22.BaseFeature = body20
boolean2 = body2.newObject("PartDesign::Boolean", "Boolean001")
boolean2.Type = "Cut"
boolean2.addObjects([body22])
doc.recompute()

body23 = doc.addObject("PartDesign::Body", "Body022")
body23.BaseFeature = body20
boolean3 = body3.newObject("PartDesign::Boolean", "Boolean002")
boolean3.Type = "Cut"
boolean3.addObjects([body23])
doc.recompute()

body24 = doc.addObject("PartDesign::Body", "Body023")
body24.BaseFeature = body20
boolean4 = body4.newObject("PartDesign::Boolean", "Boolean003")
boolean4.Type = "Cut"
boolean4.addObjects([body24])
doc.recompute()

body25 = doc.addObject("PartDesign::Body", "Body024")
body25.BaseFeature = body20
boolean5 = body5.newObject("PartDesign::Boolean", "Boolean004")
boolean5.Type = "Cut"
boolean5.addObjects([body25])
doc.recompute()

body26 = doc.addObject("PartDesign::Body", "Body025")
body26.BaseFeature = body20
boolean6 = body6.newObject("PartDesign::Boolean", "Boolean005")
boolean6.Type = "Cut"
boolean6.addObjects([body26])
doc.recompute()

body27 = doc.addObject("PartDesign::Body", "Body026")
body27.BaseFeature = body20
boolean7 = body7.newObject("PartDesign::Boolean", "Boolean006")
boolean7.Type = "Cut"
boolean7.addObjects([body27])
doc.recompute()

body28 = doc.addObject("PartDesign::Body", "Body027")
body28.BaseFeature = body20
boolean8 = body8.newObject("PartDesign::Boolean", "Boolean007")
boolean8.Type = "Cut"
boolean8.addObjects([body28])
doc.recompute()

body29 = doc.addObject("PartDesign::Body", "Body028")
body29.BaseFeature = body20
boolean9 = body9.newObject("PartDesign::Boolean", "Boolean008")
boolean9.Type = "Cut"
boolean9.addObjects([body29])
doc.recompute()

body30 = doc.addObject("PartDesign::Body", "Body029")
body30.BaseFeature = body20
boolean10 = body10.newObject("PartDesign::Boolean", "Boolean009")
boolean10.Type = "Cut"
boolean10.addObjects([body30])
doc.recompute()

body31 = doc.addObject("PartDesign::Body", "Body030")
body31.BaseFeature = body20
boolean11 = body11.newObject("PartDesign::Boolean", "Boolean010")
boolean11.Type = "Cut"
boolean11.addObjects([body31])
doc.recompute()

body32 = doc.addObject("PartDesign::Body", "Body031")
body32.BaseFeature = body20
boolean12 = body12.newObject("PartDesign::Boolean", "Boolean011")
boolean12.Type = "Cut"
boolean12.addObjects([body32])
doc.recompute()

body33 = doc.addObject("PartDesign::Body", "Body032")
body33.BaseFeature = body20
boolean13 = body13.newObject("PartDesign::Boolean", "Boolean012")
boolean13.Type = "Cut"
boolean13.addObjects([body33])
doc.recompute()

body34 = doc.addObject("PartDesign::Body", "Body033")
body34.BaseFeature = body20
boolean14 = body14.newObject("PartDesign::Boolean", "Boolean013")
boolean14.Type = "Cut"
boolean14.addObjects([body34])
doc.recompute()

body35 = doc.addObject("PartDesign::Body", "Body034")
body35.BaseFeature = body20
boolean15 = body15.newObject("PartDesign::Boolean", "Boolean014")
boolean15.Type = "Cut"
boolean15.addObjects([body35])
doc.recompute()

body36 = doc.addObject("PartDesign::Body", "Body035")
body36.BaseFeature = body20
boolean16 = body16.newObject("PartDesign::Boolean", "Boolean015")
boolean16.Type = "Cut"
boolean16.addObjects([body36])
doc.recompute()

body37 = doc.addObject("PartDesign::Body", "Body036")
body37.BaseFeature = body20
boolean17 = body17.newObject("PartDesign::Boolean", "Boolean016")
boolean17.Type = "Cut"
boolean17.addObjects([body37])
doc.recompute()

body38 = doc.addObject("PartDesign::Body", "Body037")
body38.BaseFeature = body20
boolean18 = body18.newObject("PartDesign::Boolean", "Boolean017")
boolean18.Type = "Cut"
boolean18.addObjects([body38])
doc.recompute()

boolean19 = body19.newObject("PartDesign::Boolean", "Boolean018")
boolean19.Type = "Cut"
boolean19.addObjects([body20])

doc.recompute()
